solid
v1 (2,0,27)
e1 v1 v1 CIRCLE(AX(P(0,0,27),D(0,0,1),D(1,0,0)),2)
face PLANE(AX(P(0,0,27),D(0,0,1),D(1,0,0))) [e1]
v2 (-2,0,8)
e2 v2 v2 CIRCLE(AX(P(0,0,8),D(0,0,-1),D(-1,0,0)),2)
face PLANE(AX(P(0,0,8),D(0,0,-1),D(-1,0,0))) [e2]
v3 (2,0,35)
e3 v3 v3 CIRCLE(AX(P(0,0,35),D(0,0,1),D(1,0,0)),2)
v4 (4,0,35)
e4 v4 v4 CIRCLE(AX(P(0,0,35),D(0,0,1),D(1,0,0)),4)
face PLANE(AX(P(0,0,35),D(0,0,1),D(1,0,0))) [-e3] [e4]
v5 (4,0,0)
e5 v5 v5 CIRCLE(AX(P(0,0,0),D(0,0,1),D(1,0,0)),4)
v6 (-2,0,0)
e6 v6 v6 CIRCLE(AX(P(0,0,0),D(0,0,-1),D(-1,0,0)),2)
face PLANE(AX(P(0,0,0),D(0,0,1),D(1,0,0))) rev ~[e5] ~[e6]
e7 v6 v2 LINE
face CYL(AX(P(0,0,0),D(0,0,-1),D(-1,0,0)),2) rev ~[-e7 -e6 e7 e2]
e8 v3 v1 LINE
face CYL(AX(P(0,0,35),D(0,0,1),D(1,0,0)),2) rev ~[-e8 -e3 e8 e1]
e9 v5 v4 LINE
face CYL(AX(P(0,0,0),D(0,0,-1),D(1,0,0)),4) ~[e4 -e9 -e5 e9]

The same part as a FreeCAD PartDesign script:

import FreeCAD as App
import Part
import Sketcher

V = App.Vector

doc = App.newDocument("Part")
body = doc.addObject("PartDesign::Body", "Body")

sketch1 = body.newObject("Sketcher::SketchObject", "Sketch")
sketch1.AttachmentSupport = (doc.getObject("XY_Plane"), [""])
sketch1.MapMode = "FlatFace"
sketch1.addGeometry(Part.Circle(V(0, 0, 0), V(0, 0, 1), 4), False)
sketch1.addConstraint([
    Sketcher.Constraint("Coincident", 0, 3, -1, 1),
    Sketcher.Constraint("Diameter", 0, 8.0),
])
pad1 = body.newObject("PartDesign::Pad", "Pad")
pad1.Profile = sketch1
pad1.Length = 35

sketch2 = body.newObject("Sketcher::SketchObject", "Sketch001")
sketch2.AttachmentSupport = (doc.getObject("XY_Plane"), [""])
sketch2.MapMode = "FlatFace"
sketch2.addGeometry(Part.Circle(V(0, 0, 0), V(0, 0, 1), 2), False)
sketch2.addConstraint([
    Sketcher.Constraint("Coincident", 0, 3, -1, 1),
    Sketcher.Constraint("Diameter", 0, 4.0),
])
pocket1 = body.newObject("PartDesign::Pocket", "Pocket")
pocket1.Profile = sketch2
pocket1.Length = 8
pocket1.Reversed = True

sketch3 = body.newObject("Sketcher::SketchObject", "Sketch002")
sketch3.AttachmentSupport = (doc.getObject("XY_Plane"), [""])
sketch3.MapMode = "FlatFace"
sketch3.AttachmentOffset = App.Placement(V(0, 0, 35), App.Rotation())
sketch3.addGeometry(Part.Circle(V(0, 0, 0), V(0, 0, 1), 2), False)
sketch3.addConstraint([
    Sketcher.Constraint("Coincident", 0, 3, -1, 1),
    Sketcher.Constraint("Diameter", 0, 4.0),
])
pocket2 = body.newObject("PartDesign::Pocket", "Pocket001")
pocket2.Profile = sketch3
pocket2.Length = 8

doc.recompute()
